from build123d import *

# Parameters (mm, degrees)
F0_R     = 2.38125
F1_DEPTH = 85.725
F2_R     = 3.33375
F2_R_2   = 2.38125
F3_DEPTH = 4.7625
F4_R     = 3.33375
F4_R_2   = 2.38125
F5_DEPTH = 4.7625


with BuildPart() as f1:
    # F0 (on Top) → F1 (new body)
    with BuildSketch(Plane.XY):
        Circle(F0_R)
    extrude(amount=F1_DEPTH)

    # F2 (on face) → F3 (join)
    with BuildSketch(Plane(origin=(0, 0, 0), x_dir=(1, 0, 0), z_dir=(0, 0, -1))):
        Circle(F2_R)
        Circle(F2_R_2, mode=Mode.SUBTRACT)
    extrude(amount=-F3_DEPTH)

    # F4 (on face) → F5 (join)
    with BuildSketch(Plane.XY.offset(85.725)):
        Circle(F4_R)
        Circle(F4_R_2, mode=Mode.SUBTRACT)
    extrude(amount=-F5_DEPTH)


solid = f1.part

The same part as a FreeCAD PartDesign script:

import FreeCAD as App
import Part
import Sketcher

V = App.Vector
Q = App.Units.Quantity

doc = App.newDocument("Part")
body = doc.addObject("PartDesign::Body", "Body")

# Sketch on XY plane
sketch1 = doc.addObject("Sketcher::SketchObject", "Sketch")
body.addObject(sketch1)
sketch1.AttachmentSupport = (doc.XY_Plane, [""])
sketch1.MapMode = "FlatFace"
sketch1.addGeometry(Part.Circle(V(0, 0, 0), V(0, 0, 1), 2.38125), False)
sketch1.addConstraint(Sketcher.Constraint("Coincident", 0, 3, -1, 1))
sketch1.addConstraint(Sketcher.Constraint("Diameter", 0, Q("0.1875 in")))
pad1 = doc.addObject("PartDesign::Pad", "Pad")
body.addObject(pad1)
pad1.Profile = sketch1
pad1.Length = Q("3.375 in")

# Sketch on XY plane
sketch2 = doc.addObject("Sketcher::SketchObject", "Sketch001")
body.addObject(sketch2)
sketch2.AttachmentSupport = (doc.XY_Plane, [""])
sketch2.MapMode = "FlatFace"
sketch2.addGeometry(Part.Circle(V(0, 0, 0), V(0, 0, 1), 3.33375), False)
sketch2.addGeometry(Part.Circle(V(0, 0, 0), V(0, 0, 1), 2.38125), False)
sketch2.addConstraint(Sketcher.Constraint("Coincident", 0, 3, -1, 1))
sketch2.addConstraint(Sketcher.Constraint("Coincident", 1, 3, -1, 1))
sketch2.addConstraint(Sketcher.Constraint("Diameter", 1, Q("0.1875 in")))
sketch2.addConstraint(Sketcher.Constraint("Diameter", 0, Q("0.2625 in")))
pad2 = doc.addObject("PartDesign::Pad", "Pad001")
body.addObject(pad2)
pad2.Profile = sketch2
pad2.Length = Q("0.1875 in")

# Sketch on XY plane
sketch3 = doc.addObject("Sketcher::SketchObject", "Sketch002")
body.addObject(sketch3)
sketch3.AttachmentSupport = (doc.XY_Plane, [""])
sketch3.MapMode = "FlatFace"
sketch3.AttachmentOffset = App.Placement(V(0, 0, 3.375 * 25.4), App.Rotation())
sketch3.addGeometry(Part.Circle(V(0, 0, 0), V(0, 0, 1), 3.33375), False)
sketch3.addGeometry(Part.Circle(V(0, 0, 0), V(0, 0, 1), 2.38125), False)
sketch3.addConstraint(Sketcher.Constraint("Coincident", 0, 3, -1, 1))
sketch3.addConstraint(Sketcher.Constraint("Coincident", 1, 3, -1, 1))
sketch3.addConstraint(Sketcher.Constraint("Diameter", 1, Q("0.1875 in")))
sketch3.addConstraint(Sketcher.Constraint("Diameter", 0, Q("0.2625 in")))
pad3 = doc.addObject("PartDesign::Pad", "Pad002")
body.addObject(pad3)
pad3.Profile = sketch3
pad3.Length = Q("0.1875 in")
pad3.Reversed = True

doc.recompute()
